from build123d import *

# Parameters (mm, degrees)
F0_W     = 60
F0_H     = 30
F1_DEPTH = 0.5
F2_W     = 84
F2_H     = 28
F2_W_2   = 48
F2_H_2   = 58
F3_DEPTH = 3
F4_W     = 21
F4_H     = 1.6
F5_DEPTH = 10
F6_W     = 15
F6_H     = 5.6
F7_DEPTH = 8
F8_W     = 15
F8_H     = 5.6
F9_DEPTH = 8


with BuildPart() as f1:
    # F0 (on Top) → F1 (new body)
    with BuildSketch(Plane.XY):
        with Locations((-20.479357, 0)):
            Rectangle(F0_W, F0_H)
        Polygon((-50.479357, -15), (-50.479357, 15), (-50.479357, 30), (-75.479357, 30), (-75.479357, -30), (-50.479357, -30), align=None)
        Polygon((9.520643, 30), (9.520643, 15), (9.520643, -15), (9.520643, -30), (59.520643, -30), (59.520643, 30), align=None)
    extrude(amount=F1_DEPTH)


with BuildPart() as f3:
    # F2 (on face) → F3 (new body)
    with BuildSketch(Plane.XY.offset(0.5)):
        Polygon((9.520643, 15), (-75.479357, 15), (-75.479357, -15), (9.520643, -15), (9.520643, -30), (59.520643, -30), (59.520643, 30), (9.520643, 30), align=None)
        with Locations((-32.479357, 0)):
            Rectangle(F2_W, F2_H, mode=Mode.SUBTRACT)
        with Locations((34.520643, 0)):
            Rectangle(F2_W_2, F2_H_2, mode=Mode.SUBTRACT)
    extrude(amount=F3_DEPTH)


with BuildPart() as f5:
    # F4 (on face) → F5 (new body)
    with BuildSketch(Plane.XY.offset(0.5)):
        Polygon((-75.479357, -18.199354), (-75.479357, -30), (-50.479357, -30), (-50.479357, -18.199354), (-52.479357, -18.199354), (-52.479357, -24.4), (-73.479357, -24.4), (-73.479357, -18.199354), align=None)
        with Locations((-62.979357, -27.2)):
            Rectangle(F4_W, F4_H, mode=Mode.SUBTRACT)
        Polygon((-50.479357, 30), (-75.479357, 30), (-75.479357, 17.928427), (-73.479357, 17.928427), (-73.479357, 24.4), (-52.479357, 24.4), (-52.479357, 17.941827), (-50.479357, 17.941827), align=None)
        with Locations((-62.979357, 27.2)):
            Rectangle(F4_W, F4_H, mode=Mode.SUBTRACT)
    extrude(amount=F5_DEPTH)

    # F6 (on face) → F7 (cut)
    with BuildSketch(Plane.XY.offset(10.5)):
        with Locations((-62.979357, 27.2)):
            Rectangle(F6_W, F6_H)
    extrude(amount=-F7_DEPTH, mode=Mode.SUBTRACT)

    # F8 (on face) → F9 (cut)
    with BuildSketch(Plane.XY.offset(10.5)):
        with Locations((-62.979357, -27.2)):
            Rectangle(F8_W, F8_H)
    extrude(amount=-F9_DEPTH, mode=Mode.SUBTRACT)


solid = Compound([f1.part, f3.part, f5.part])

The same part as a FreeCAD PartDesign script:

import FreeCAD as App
import Part
import Sketcher

doc = App.newDocument("Part")
body = doc.addObject("PartDesign::Body", "Body")

# Sketch on XY plane
sketch1 = body.newObject("Sketcher::SketchObject", "Sketch")
sketch1.AttachmentSupport = (doc.getObject("XY_Plane"), [""])
sketch1.MapMode = "FlatFace"
sketch1.addGeometry(Part.LineSegment(App.Vector(-50, -15, 0), App.Vector(10, -15, 0)), False)
sketch1.addGeometry(Part.LineSegment(App.Vector(10, -15, 0), App.Vector(10, -30, 0)), False)
sketch1.addGeometry(Part.LineSegment(App.Vector(10, -30, 0), App.Vector(60, -30, 0)), False)
sketch1.addGeometry(Part.LineSegment(App.Vector(60, -30, 0), App.Vector(60, 30, 0)), False)
sketch1.addGeometry(Part.LineSegment(App.Vector(60, 30, 0), App.Vector(10, 30, 0)), False)
sketch1.addGeometry(Part.LineSegment(App.Vector(10, 30, 0), App.Vector(10, 15, 0)), False)
sketch1.addGeometry(Part.LineSegment(App.Vector(10, 15, 0), App.Vector(-50, 15, 0)), False)
sketch1.addGeometry(Part.LineSegment(App.Vector(-50, 15, 0), App.Vector(-50, 30, 0)), False)
sketch1.addGeometry(Part.LineSegment(App.Vector(-50, 30, 0), App.Vector(-75, 30, 0)), False)
sketch1.addGeometry(Part.LineSegment(App.Vector(-75, 30, 0), App.Vector(-75, -30, 0)), False)
sketch1.addGeometry(Part.LineSegment(App.Vector(-75, -30, 0), App.Vector(-50, -30, 0)), False)
sketch1.addGeometry(Part.LineSegment(App.Vector(-50, -30, 0), App.Vector(-50, -15, 0)), False)
sketch1.addConstraint(Sketcher.Constraint("Coincident", 0, 2, 1, 1))
sketch1.addConstraint(Sketcher.Constraint("Coincident", 1, 2, 2, 1))
sketch1.addConstraint(Sketcher.Constraint("Coincident", 2, 2, 3, 1))
sketch1.addConstraint(Sketcher.Constraint("Coincident", 3, 2, 4, 1))
sketch1.addConstraint(Sketcher.Constraint("Coincident", 4, 2, 5, 1))
sketch1.addConstraint(Sketcher.Constraint("Coincident", 5, 2, 6, 1))
sketch1.addConstraint(Sketcher.Constraint("Coincident", 6, 2, 7, 1))
sketch1.addConstraint(Sketcher.Constraint("Coincident", 7, 2, 8, 1))
sketch1.addConstraint(Sketcher.Constraint("Coincident", 8, 2, 9, 1))
sketch1.addConstraint(Sketcher.Constraint("Coincident", 9, 2, 10, 1))
sketch1.addConstraint(Sketcher.Constraint("Coincident", 10, 2, 11, 1))
sketch1.addConstraint(Sketcher.Constraint("Coincident", 11, 2, 0, 1))
sketch1.addConstraint(Sketcher.Constraint("Horizontal", 0))
sketch1.addConstraint(Sketcher.Constraint("Vertical", 1))
sketch1.addConstraint(Sketcher.Constraint("Horizontal", 2))
sketch1.addConstraint(Sketcher.Constraint("Vertical", 3))
sketch1.addConstraint(Sketcher.Constraint("Horizontal", 4))
sketch1.addConstraint(Sketcher.Constraint("Vertical", 5))
sketch1.addConstraint(Sketcher.Constraint("Horizontal", 6))
sketch1.addConstraint(Sketcher.Constraint("Vertical", 7))
sketch1.addConstraint(Sketcher.Constraint("Horizontal", 8))
sketch1.addConstraint(Sketcher.Constraint("Vertical", 9))
sketch1.addConstraint(Sketcher.Constraint("Horizontal", 10))
sketch1.addConstraint(Sketcher.Constraint("Vertical", 11))
sketch1.addConstraint(Sketcher.Constraint("Symmetric", 1, 2, 4, 2, -1))
sketch1.addConstraint(Sketcher.Constraint("Symmetric", 7, 2, 10, 2, -1))
sketch1.addConstraint(Sketcher.Constraint("Horizontal", 4, 2, 7, 2))
sketch1.addConstraint(Sketcher.Constraint("Equal", 6, 3))
sketch1.addConstraint(Sketcher.Constraint("Equal", 1, 5))
sketch1.addConstraint(Sketcher.Constraint("DistanceX", 0, 1, 0, 2, 60.0))
sketch1.addConstraint(Sketcher.Constraint("DistanceX", 2, 1, 2, 2, 50.0))
sketch1.addConstraint(Sketcher.Constraint("DistanceX", 8, 2, 8, 1, 25.0))
sketch1.addConstraint(Sketcher.Constraint("DistanceY", 1, 2, 1, 1, 15.0))
sketch1.addConstraint(Sketcher.Constraint("DistanceX", -1, 1, 0, 2, 9.520643))
pad1 = body.newObject("PartDesign::Pad", "Pad")
pad1.Profile = sketch1
pad1.Length = 0.5
body2 = doc.addObject("PartDesign::Body", "Body001")

# Sketch on XY plane
sketch2 = body2.newObject("Sketcher::SketchObject", "Sketch001")
sketch2.AttachmentSupport = (doc.getObject("XY_Plane001"), [""])
sketch2.MapMode = "FlatFace"
sketch2.AttachmentOffset = App.Placement(App.Vector(0, 0, 0.5), App.Rotation())
sketch2.addGeometry(Part.LineSegment(App.Vector(10, 15, 0), App.Vector(-75, 15, 0)), False)
sketch2.addGeometry(Part.LineSegment(App.Vector(-75, 15, 0), App.Vector(-75, -15, 0)), False)
sketch2.addGeometry(Part.LineSegment(App.Vector(-75, -15, 0), App.Vector(10, -15, 0)), False)
sketch2.addGeometry(Part.LineSegment(App.Vector(10, -15, 0), App.Vector(10, -30, 0)), False)
sketch2.addGeometry(Part.LineSegment(App.Vector(10, -30, 0), App.Vector(60, -30, 0)), False)
sketch2.addGeometry(Part.LineSegment(App.Vector(60, -30, 0), App.Vector(60, 30, 0)), False)
sketch2.addGeometry(Part.LineSegment(App.Vector(60, 30, 0), App.Vector(10, 30, 0)), False)
sketch2.addGeometry(Part.LineSegment(App.Vector(10, 30, 0), App.Vector(10, 15, 0)), False)
sketch2.addGeometry(Part.LineSegment(App.Vector(10, -14, 0), App.Vector(-74, -14, 0)), False)
sketch2.addGeometry(Part.LineSegment(App.Vector(-74, -14, 0), App.Vector(-74, 14, 0)), False)
sketch2.addGeometry(Part.LineSegment(App.Vector(-74, 14, 0), App.Vector(10, 14, 0)), False)
sketch2.addGeometry(Part.LineSegment(App.Vector(10, 14, 0), App.Vector(10, -14, 0)), False)
sketch2.addGeometry(Part.LineSegment(App.Vector(59, -29, 0), App.Vector(11, -29, 0)), False)
sketch2.addGeometry(Part.LineSegment(App.Vector(11, -29, 0), App.Vector(11, 29, 0)), False)
sketch2.addGeometry(Part.LineSegment(App.Vector(11, 29, 0), App.Vector(59, 29, 0)), False)
sketch2.addGeometry(Part.LineSegment(App.Vector(59, 29, 0), App.Vector(59, -29, 0)), False)
sketch2.addConstraint(Sketcher.Constraint("Coincident", 0, 2, 1, 1))
sketch2.addConstraint(Sketcher.Constraint("Coincident", 1, 2, 2, 1))
sketch2.addConstraint(Sketcher.Constraint("Coincident", 2, 2, 3, 1))
sketch2.addConstraint(Sketcher.Constraint("Coincident", 3, 2, 4, 1))
sketch2.addConstraint(Sketcher.Constraint("Coincident", 4, 2, 5, 1))
sketch2.addConstraint(Sketcher.Constraint("Coincident", 5, 2, 6, 1))
sketch2.addConstraint(Sketcher.Constraint("Coincident", 6, 2, 7, 1))
sketch2.addConstraint(Sketcher.Constraint("Coincident", 7, 2, 0, 1))
sketch2.addConstraint(Sketcher.Constraint("Coincident", 8, 2, 9, 1))
sketch2.addConstraint(Sketcher.Constraint("Coincident", 9, 2, 10, 1))
sketch2.addConstraint(Sketcher.Constraint("Coincident", 10, 2, 11, 1))
sketch2.addConstraint(Sketcher.Constraint("Coincident", 11, 2, 8, 1))
sketch2.addConstraint(Sketcher.Constraint("Coincident", 12, 2, 13, 1))
sketch2.addConstraint(Sketcher.Constraint("Coincident", 13, 2, 14, 1))
sketch2.addConstraint(Sketcher.Constraint("Coincident", 14, 2, 15, 1))
sketch2.addConstraint(Sketcher.Constraint("Coincident", 15, 2, 12, 1))
sketch2.addConstraint(Sketcher.Constraint("Horizontal", 0))
sketch2.addConstraint(Sketcher.Constraint("Vertical", 1))
sketch2.addConstraint(Sketcher.Constraint("Horizontal", 2))
sketch2.addConstraint(Sketcher.Constraint("Vertical", 3))
sketch2.addConstraint(Sketcher.Constraint("Horizontal", 4))
sketch2.addConstraint(Sketcher.Constraint("Vertical", 5))
sketch2.addConstraint(Sketcher.Constraint("Horizontal", 6))
sketch2.addConstraint(Sketcher.Constraint("Vertical", 7))
sketch2.addConstraint(Sketcher.Constraint("Horizontal", 8))
sketch2.addConstraint(Sketcher.Constraint("Vertical", 9))
sketch2.addConstraint(Sketcher.Constraint("Horizontal", 10))
sketch2.addConstraint(Sketcher.Constraint("Vertical", 11))
sketch2.addConstraint(Sketcher.Constraint("Horizontal", 12))
sketch2.addConstraint(Sketcher.Constraint("Vertical", 13))
sketch2.addConstraint(Sketcher.Constraint("Horizontal", 14))
sketch2.addConstraint(Sketcher.Constraint("Vertical", 15))
sketch2.addConstraint(Sketcher.Constraint("Symmetric", 3, 2, 6, 2, -1))
sketch2.addConstraint(Sketcher.Constraint("Vertical", 7, 2, 10, 2))
sketch2.addConstraint(Sketcher.Constraint("Equal", 3, 7))
sketch2.addConstraint(Sketcher.Constraint("DistanceX", 0, 2, 0, 1, 85.0))
sketch2.addConstraint(Sketcher.Constraint("DistanceX", 4, 1, 4, 2, 50.0))
sketch2.addConstraint(Sketcher.Constraint("DistanceX", 8, 2, 8, 1, 84.0))
sketch2.addConstraint(Sketcher.Constraint("DistanceX", 12, 2, 12, 1, 48.0))
sketch2.addConstraint(Sketcher.Constraint("DistanceY", 1, 2, 1, 1, 30.0))
sketch2.addConstraint(Sketcher.Constraint("DistanceY", 3, 2, 3, 1, 15.0))
sketch2.addConstraint(Sketcher.Constraint("DistanceY", 9, 1, 9, 2, 28.0))
sketch2.addConstraint(Sketcher.Constraint("DistanceY", 13, 1, 13, 2, 58.0))
sketch2.addConstraint(Sketcher.Constraint("DistanceY", 8, 2, -1, 1, 14.0))
sketch2.addConstraint(Sketcher.Constraint("DistanceY", 12, 2, -1, 1, 29.0))
sketch2.addConstraint(Sketcher.Constraint("DistanceX", 3, 2, 12, 2, 1.0))
sketch2.addConstraint(Sketcher.Constraint("DistanceX", 0, 2, -1, 1, 75.479357))
pad2 = body2.newObject("PartDesign::Pad", "Pad001")
pad2.Profile = sketch2
pad2.Length = 3
body3 = doc.addObject("PartDesign::Body", "Body002")
body3.AllowCompound = True

# Sketch on XY plane
sketch3 = body3.newObject("Sketcher::SketchObject", "Sketch002")
sketch3.AttachmentSupport = (doc.getObject("XY_Plane002"), [""])
sketch3.MapMode = "FlatFace"
sketch3.AttachmentOffset = App.Placement(App.Vector(0, 0, 0.5), App.Rotation())
sketch3.addGeometry(Part.LineSegment(App.Vector(-75.5, -18.2, 0), App.Vector(-75.5, -30, 0)), False)
sketch3.addGeometry(Part.LineSegment(App.Vector(-75.5, -30, 0), App.Vector(-50.5, -30, 0)), False)
sketch3.addGeometry(Part.LineSegment(App.Vector(-50.5, -30, 0), App.Vector(-50.5, -18.2, 0)), False)
sketch3.addGeometry(Part.LineSegment(App.Vector(-50.5, -18.2, 0), App.Vector(-52.5, -18.2, 0)), False)
sketch3.addGeometry(Part.LineSegment(App.Vector(-52.5, -18.2, 0), App.Vector(-52.5, -24.4, 0)), False)
sketch3.addGeometry(Part.LineSegment(App.Vector(-52.5, -24.4, 0), App.Vector(-73.5, -24.4, 0)), False)
sketch3.addGeometry(Part.LineSegment(App.Vector(-73.5, -24.4, 0), App.Vector(-73.5, -18.2, 0)), False)
sketch3.addGeometry(Part.LineSegment(App.Vector(-73.5, -18.2, 0), App.Vector(-75.5, -18.2, 0)), False)
sketch3.addGeometry(Part.LineSegment(App.Vector(-52.5, -28, 0), App.Vector(-73.5, -28, 0)), False)
sketch3.addGeometry(Part.LineSegment(App.Vector(-73.5, -28, 0), App.Vector(-73.5, -26.4, 0)), False)
sketch3.addGeometry(Part.LineSegment(App.Vector(-73.5, -26.4, 0), App.Vector(-52.5, -26.4, 0)), False)
sketch3.addGeometry(Part.LineSegment(App.Vector(-52.5, -26.4, 0), App.Vector(-52.5, -28, 0)), False)
sketch3.addGeometry(Part.LineSegment(App.Vector(-50.5, 30, 0), App.Vector(-75.5, 30, 0)), False)
sketch3.addGeometry(Part.LineSegment(App.Vector(-75.5, 30, 0), App.Vector(-75.5, 17.9, 0)), False)
sketch3.addGeometry(Part.LineSegment(App.Vector(-75.5, 17.9, 0), App.Vector(-73.5, 17.9, 0)), False)
sketch3.addGeometry(Part.LineSegment(App.Vector(-73.5, 17.9, 0), App.Vector(-73.5, 24.4, 0)), False)
sketch3.addGeometry(Part.LineSegment(App.Vector(-73.5, 24.4, 0), App.Vector(-52.5, 24.4, 0)), False)
sketch3.addGeometry(Part.LineSegment(App.Vector(-52.5, 24.4, 0), App.Vector(-52.5, 17.9, 0)), False)
sketch3.addGeometry(Part.LineSegment(App.Vector(-52.5, 17.9, 0), App.Vector(-50.5, 17.9, 0)), False)
sketch3.addGeometry(Part.LineSegment(App.Vector(-50.5, 17.9, 0), App.Vector(-50.5, 30, 0)), False)
sketch3.addGeometry(Part.LineSegment(App.Vector(-52.5, 26.4, 0), App.Vector(-73.5, 26.4, 0)), False)
sketch3.addGeometry(Part.LineSegment(App.Vector(-73.5, 26.4, 0), App.Vector(-73.5, 28, 0)), False)
sketch3.addGeometry(Part.LineSegment(App.Vector(-73.5, 28, 0), App.Vector(-52.5, 28, 0)), False)
sketch3.addGeometry(Part.LineSegment(App.Vector(-52.5, 28, 0), App.Vector(-52.5, 26.4, 0)), False)
sketch3.addConstraint(Sketcher.Constraint("Coincident", 0, 2, 1, 1))
sketch3.addConstraint(Sketcher.Constraint("Coincident", 1, 2, 2, 1))
sketch3.addConstraint(Sketcher.Constraint("Coincident", 2, 2, 3, 1))
sketch3.addConstraint(Sketcher.Constraint("Coincident", 3, 2, 4, 1))
sketch3.addConstraint(Sketcher.Constraint("Coincident", 4, 2, 5, 1))
sketch3.addConstraint(Sketcher.Constraint("Coincident", 5, 2, 6, 1))
sketch3.addConstraint(Sketcher.Constraint("Coincident", 6, 2, 7, 1))
sketch3.addConstraint(Sketcher.Constraint("Coincident", 7, 2, 0, 1))
sketch3.addConstraint(Sketcher.Constraint("Coincident", 8, 2, 9, 1))
sketch3.addConstraint(Sketcher.Constraint("Coincident", 9, 2, 10, 1))
sketch3.addConstraint(Sketcher.Constraint("Coincident", 10, 2, 11, 1))
sketch3.addConstraint(Sketcher.Constraint("Coincident", 11, 2, 8, 1))
sketch3.addConstraint(Sketcher.Constraint("Coincident", 12, 2, 13, 1))
sketch3.addConstraint(Sketcher.Constraint("Coincident", 13, 2, 14, 1))
sketch3.addConstraint(Sketcher.Constraint("Coincident", 14, 2, 15, 1))
sketch3.addConstraint(Sketcher.Constraint("Coincident", 15, 2, 16, 1))
sketch3.addConstraint(Sketcher.Constraint("Coincident", 16, 2, 17, 1))
sketch3.addConstraint(Sketcher.Constraint("Coincident", 17, 2, 18, 1))
sketch3.addConstraint(Sketcher.Constraint("Coincident", 18, 2, 19, 1))
sketch3.addConstraint(Sketcher.Constraint("Coincident", 19, 2, 12, 1))
sketch3.addConstraint(Sketcher.Constraint("Coincident", 20, 2, 21, 1))
sketch3.addConstraint(Sketcher.Constraint("Coincident", 21, 2, 22, 1))
sketch3.addConstraint(Sketcher.Constraint("Coincident", 22, 2, 23, 1))
sketch3.addConstraint(Sketcher.Constraint("Coincident", 23, 2, 20, 1))
sketch3.addConstraint(Sketcher.Constraint("Vertical", 0))
sketch3.addConstraint(Sketcher.Constraint("Horizontal", 1))
sketch3.addConstraint(Sketcher.Constraint("Vertical", 2))
sketch3.addConstraint(Sketcher.Constraint("Horizontal", 3))
sketch3.addConstraint(Sketcher.Constraint("Vertical", 4))
sketch3.addConstraint(Sketcher.Constraint("Horizontal", 5))
sketch3.addConstraint(Sketcher.Constraint("Vertical", 6))
sketch3.addConstraint(Sketcher.Constraint("Horizontal", 7))
sketch3.addConstraint(Sketcher.Constraint("Horizontal", 8))
sketch3.addConstraint(Sketcher.Constraint("Vertical", 9))
sketch3.addConstraint(Sketcher.Constraint("Horizontal", 10))
sketch3.addConstraint(Sketcher.Constraint("Vertical", 11))
sketch3.addConstraint(Sketcher.Constraint("Horizontal", 12))
sketch3.addConstraint(Sketcher.Constraint("Vertical", 13))
sketch3.addConstraint(Sketcher.Constraint("Horizontal", 14))
sketch3.addConstraint(Sketcher.Constraint("Vertical", 15))
sketch3.addConstraint(Sketcher.Constraint("Horizontal", 16))
sketch3.addConstraint(Sketcher.Constraint("Vertical", 17))
sketch3.addConstraint(Sketcher.Constraint("Horizontal", 18))
sketch3.addConstraint(Sketcher.Constraint("Vertical", 19))
sketch3.addConstraint(Sketcher.Constraint("Horizontal", 20))
sketch3.addConstraint(Sketcher.Constraint("Vertical", 21))
sketch3.addConstraint(Sketcher.Constraint("Horizontal", 22))
sketch3.addConstraint(Sketcher.Constraint("Vertical", 23))
sketch3.addConstraint(Sketcher.Constraint("Symmetric", 0, 2, 12, 2, -1))
sketch3.addConstraint(Sketcher.Constraint("Symmetric", 5, 2, 15, 2, -1))
sketch3.addConstraint(Sketcher.Constraint("Symmetric", 9, 2, 20, 2, -1))
sketch3.addConstraint(Sketcher.Constraint("Symmetric", 11, 2, 22, 2, -1))
sketch3.addConstraint(Sketcher.Constraint("Horizontal", 3, 2, 6, 2))
sketch3.addConstraint(Sketcher.Constraint("Vertical", 6, 2, 8, 2))
sketch3.addConstraint(Sketcher.Constraint("Vertical", 4, 2, 10, 2))
sketch3.addConstraint(Sketcher.Constraint("Vertical", 11, 2, 16, 2))
sketch3.addConstraint(Sketcher.Constraint("Vertical", 2, 2, 18, 2))
sketch3.addConstraint(Sketcher.Constraint("Equal", 3, 7))
sketch3.addConstraint(Sketcher.Constraint("DistanceX", 1, 1, 1, 2, 25.0))
sketch3.addConstraint(Sketcher.Constraint("DistanceX", 3, 2, 3, 1, 2.0))
sketch3.addConstraint(Sketcher.Constraint("DistanceY", 9, 1, 9, 2, 1.6))
sketch3.addConstraint(Sketcher.Constraint("DistanceY", 0, 2, -1, 1, 30.0))
sketch3.addConstraint(Sketcher.Constraint("DistanceY", 8, 2, -1, 1, 28.0))
sketch3.addConstraint(Sketcher.Constraint("DistanceY", 9, 2, 5, 2, 2.0))
sketch3.addConstraint(Sketcher.Constraint("DistanceY", 14, 2, 17, 2, 0.0134))
sketch3.addConstraint(Sketcher.Constraint("DistanceY", 0, 2, 0, 1, 11.800646))
sketch3.addConstraint(Sketcher.Constraint("DistanceY", 13, 2, 13, 1, 12.071573))
sketch3.addConstraint(Sketcher.Constraint("DistanceX", 0, 2, -1, 1, 75.479357))
pad3 = body3.newObject("PartDesign::Pad", "Pad002")
pad3.Profile = sketch3
pad3.Length = 10

# Sketch on XY plane
sketch4 = body3.newObject("Sketcher::SketchObject", "Sketch003")
sketch4.AttachmentSupport = (doc.getObject("XY_Plane002"), [""])
sketch4.MapMode = "FlatFace"
sketch4.AttachmentOffset = App.Placement(App.Vector(0, 0, 10.5), App.Rotation())
sketch4.addGeometry(Part.LineSegment(App.Vector(-70, 30, 0), App.Vector(-70, 24, 0)), False)
sketch4.addGeometry(Part.LineSegment(App.Vector(-70, 24, 0), App.Vector(-55, 24, 0)), False)
sketch4.addGeometry(Part.LineSegment(App.Vector(-55, 24, 0), App.Vector(-55, 30, 0)), False)
sketch4.addGeometry(Part.LineSegment(App.Vector(-55, 30, 0), App.Vector(-70, 30, 0)), False)
sketch4.addConstraint(Sketcher.Constraint("Coincident", 0, 2, 1, 1))
sketch4.addConstraint(Sketcher.Constraint("Coincident", 1, 2, 2, 1))
sketch4.addConstraint(Sketcher.Constraint("Coincident", 2, 2, 3, 1))
sketch4.addConstraint(Sketcher.Constraint("Coincident", 3, 2, 0, 1))
sketch4.addConstraint(Sketcher.Constraint("Vertical", 0))
sketch4.addConstraint(Sketcher.Constraint("Horizontal", 1))
sketch4.addConstraint(Sketcher.Constraint("Vertical", 2))
sketch4.addConstraint(Sketcher.Constraint("Horizontal", 3))
sketch4.addConstraint(Sketcher.Constraint("DistanceX", 1, 1, 1, 2, 15.0))
sketch4.addConstraint(Sketcher.Constraint("DistanceY", 0, 2, 0, 1, 5.6))
sketch4.addConstraint(Sketcher.Constraint("DistanceY", -1, 1, 2, 2, 30.0))
sketch4.addConstraint(Sketcher.Constraint("DistanceX", 0, 2, -1, 1, 70.479357))
pocket1 = body3.newObject("PartDesign::Pocket", "Pocket")
pocket1.Profile = sketch4
pocket1.Length = 8

# Sketch on XY plane
sketch5 = body3.newObject("Sketcher::SketchObject", "Sketch004")
sketch5.AttachmentSupport = (doc.getObject("XY_Plane002"), [""])
sketch5.MapMode = "FlatFace"
sketch5.AttachmentOffset = App.Placement(App.Vector(0, 0, 10.5), App.Rotation())
sketch5.addGeometry(Part.LineSegment(App.Vector(-70, -24, 0), App.Vector(-70, -30, 0)), False)
sketch5.addGeometry(Part.LineSegment(App.Vector(-70, -30, 0), App.Vector(-55, -30, 0)), False)
sketch5.addGeometry(Part.LineSegment(App.Vector(-55, -30, 0), App.Vector(-55, -24, 0)), False)
sketch5.addGeometry(Part.LineSegment(App.Vector(-55, -24, 0), App.Vector(-70, -24, 0)), False)
sketch5.addConstraint(Sketcher.Constraint("Coincident", 0, 2, 1, 1))
sketch5.addConstraint(Sketcher.Constraint("Coincident", 1, 2, 2, 1))
sketch5.addConstraint(Sketcher.Constraint("Coincident", 2, 2, 3, 1))
sketch5.addConstraint(Sketcher.Constraint("Coincident", 3, 2, 0, 1))
sketch5.addConstraint(Sketcher.Constraint("Vertical", 0))
sketch5.addConstraint(Sketcher.Constraint("Horizontal", 1))
sketch5.addConstraint(Sketcher.Constraint("Vertical", 2))
sketch5.addConstraint(Sketcher.Constraint("Horizontal", 3))
sketch5.addConstraint(Sketcher.Constraint("DistanceX", 1, 1, 1, 2, 15.0))
sketch5.addConstraint(Sketcher.Constraint("DistanceY", 0, 2, 0, 1, 5.6))
sketch5.addConstraint(Sketcher.Constraint("DistanceY", 0, 2, -1, 1, 30.0))
sketch5.addConstraint(Sketcher.Constraint("DistanceX", 0, 2, -1, 1, 70.479357))
pocket2 = body3.newObject("PartDesign::Pocket", "Pocket001")
pocket2.Profile = sketch5
pocket2.Length = 8

doc.recompute()
